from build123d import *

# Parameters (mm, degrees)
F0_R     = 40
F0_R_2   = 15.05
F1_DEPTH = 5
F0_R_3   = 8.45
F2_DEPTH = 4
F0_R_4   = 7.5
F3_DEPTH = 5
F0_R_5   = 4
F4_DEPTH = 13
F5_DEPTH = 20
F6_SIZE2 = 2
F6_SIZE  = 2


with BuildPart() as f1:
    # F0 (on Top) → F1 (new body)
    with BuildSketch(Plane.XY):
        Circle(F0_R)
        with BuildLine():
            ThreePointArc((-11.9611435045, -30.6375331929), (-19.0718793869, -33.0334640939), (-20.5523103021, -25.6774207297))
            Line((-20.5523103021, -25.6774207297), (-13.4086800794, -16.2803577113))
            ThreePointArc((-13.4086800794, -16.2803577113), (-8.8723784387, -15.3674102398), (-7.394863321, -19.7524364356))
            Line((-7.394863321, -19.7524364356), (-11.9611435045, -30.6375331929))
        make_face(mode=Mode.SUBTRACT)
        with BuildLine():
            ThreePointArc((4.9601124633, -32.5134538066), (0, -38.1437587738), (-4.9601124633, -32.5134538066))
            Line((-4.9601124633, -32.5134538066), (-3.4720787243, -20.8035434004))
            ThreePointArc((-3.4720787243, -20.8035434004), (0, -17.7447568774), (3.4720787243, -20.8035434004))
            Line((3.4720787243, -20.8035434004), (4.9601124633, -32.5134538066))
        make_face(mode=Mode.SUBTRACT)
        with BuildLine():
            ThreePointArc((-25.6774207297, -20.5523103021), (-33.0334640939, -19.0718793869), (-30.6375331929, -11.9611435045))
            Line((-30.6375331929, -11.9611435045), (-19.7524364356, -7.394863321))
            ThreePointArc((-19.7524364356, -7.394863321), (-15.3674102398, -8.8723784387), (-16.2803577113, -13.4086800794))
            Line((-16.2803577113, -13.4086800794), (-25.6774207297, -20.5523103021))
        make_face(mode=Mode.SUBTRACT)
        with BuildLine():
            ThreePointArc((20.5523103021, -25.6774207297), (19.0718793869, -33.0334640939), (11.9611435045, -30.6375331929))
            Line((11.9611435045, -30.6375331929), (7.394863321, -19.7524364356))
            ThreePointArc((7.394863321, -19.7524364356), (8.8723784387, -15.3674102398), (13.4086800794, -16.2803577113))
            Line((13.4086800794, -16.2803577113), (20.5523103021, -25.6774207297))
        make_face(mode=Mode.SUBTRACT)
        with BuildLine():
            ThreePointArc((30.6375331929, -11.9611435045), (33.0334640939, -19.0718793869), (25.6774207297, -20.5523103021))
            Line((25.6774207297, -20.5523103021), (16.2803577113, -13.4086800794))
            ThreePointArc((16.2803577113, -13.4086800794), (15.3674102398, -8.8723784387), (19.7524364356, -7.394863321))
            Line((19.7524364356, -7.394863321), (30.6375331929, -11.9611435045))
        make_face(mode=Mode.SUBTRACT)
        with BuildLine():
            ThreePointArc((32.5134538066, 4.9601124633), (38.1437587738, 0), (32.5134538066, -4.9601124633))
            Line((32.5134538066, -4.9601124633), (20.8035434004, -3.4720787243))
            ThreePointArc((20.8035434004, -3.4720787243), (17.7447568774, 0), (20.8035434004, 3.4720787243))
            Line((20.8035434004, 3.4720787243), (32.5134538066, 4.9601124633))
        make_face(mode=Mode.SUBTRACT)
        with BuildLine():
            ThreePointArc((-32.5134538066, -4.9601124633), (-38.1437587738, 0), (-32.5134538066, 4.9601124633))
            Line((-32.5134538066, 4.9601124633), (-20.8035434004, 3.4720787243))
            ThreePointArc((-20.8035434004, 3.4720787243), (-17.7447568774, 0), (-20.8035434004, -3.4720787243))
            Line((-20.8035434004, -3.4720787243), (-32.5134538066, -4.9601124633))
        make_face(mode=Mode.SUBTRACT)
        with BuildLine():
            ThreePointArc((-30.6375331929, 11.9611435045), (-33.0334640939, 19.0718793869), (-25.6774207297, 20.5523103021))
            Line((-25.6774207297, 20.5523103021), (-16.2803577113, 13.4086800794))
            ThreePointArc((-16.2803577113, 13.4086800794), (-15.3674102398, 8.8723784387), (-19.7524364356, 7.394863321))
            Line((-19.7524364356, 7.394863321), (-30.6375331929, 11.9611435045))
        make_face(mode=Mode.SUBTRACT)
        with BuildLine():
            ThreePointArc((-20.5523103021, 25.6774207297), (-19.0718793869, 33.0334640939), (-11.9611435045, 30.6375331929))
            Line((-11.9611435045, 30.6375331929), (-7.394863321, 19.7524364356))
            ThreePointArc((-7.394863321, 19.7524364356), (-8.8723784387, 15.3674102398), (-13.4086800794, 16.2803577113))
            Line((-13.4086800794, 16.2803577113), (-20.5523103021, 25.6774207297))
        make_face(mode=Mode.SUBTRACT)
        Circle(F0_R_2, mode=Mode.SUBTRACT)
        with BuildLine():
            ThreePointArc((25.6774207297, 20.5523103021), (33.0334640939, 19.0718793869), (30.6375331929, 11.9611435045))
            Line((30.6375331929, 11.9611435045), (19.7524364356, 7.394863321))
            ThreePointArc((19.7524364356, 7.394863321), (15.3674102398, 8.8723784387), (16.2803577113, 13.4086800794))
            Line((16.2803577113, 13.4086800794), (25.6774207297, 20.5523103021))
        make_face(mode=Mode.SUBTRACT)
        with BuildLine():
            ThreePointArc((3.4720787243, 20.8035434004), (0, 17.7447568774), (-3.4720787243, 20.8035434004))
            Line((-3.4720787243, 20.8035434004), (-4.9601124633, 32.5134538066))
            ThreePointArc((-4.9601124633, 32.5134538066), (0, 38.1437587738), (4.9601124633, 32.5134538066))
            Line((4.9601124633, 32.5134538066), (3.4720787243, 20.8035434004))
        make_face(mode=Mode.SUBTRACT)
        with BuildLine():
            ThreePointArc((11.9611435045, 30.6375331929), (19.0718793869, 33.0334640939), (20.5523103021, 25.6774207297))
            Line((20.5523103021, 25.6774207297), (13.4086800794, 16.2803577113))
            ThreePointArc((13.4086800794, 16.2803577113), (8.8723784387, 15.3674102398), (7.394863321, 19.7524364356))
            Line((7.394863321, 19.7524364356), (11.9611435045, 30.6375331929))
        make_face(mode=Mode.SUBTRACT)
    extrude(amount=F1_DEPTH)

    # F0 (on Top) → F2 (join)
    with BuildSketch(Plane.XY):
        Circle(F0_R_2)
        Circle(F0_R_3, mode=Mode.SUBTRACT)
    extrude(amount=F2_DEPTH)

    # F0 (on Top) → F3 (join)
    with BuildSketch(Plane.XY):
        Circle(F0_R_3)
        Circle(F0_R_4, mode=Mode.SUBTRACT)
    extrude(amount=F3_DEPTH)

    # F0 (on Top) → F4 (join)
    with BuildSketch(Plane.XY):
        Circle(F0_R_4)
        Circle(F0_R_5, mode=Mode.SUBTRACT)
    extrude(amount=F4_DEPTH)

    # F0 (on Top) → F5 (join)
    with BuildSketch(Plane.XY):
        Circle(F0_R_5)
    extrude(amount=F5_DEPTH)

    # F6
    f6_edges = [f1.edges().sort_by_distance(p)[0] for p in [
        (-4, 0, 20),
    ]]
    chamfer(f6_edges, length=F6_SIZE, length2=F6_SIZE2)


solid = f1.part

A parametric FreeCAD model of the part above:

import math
import FreeCAD as App
import Part
import Sketcher
from FreeCAD import Vector


def edges_at(feature, points):
    """Names of the edges that pass closest to the given points."""
    edges = feature.Shape.Edges
    near = lambda p: min(range(len(edges)), key=lambda i: edges[i].distToShape(Part.Vertex(*p))[0])
    return sorted({f"Edge{near(p) + 1}" for p in points})

doc = App.newDocument("Part")
body = doc.addObject("PartDesign::Body", "Body")

# Sketch on XY plane
sketch1 = body.newObject("Sketcher::SketchObject", "Sketch")
sketch1.AttachmentSupport = (doc.getObject("XY_Plane"), [""])
sketch1.MapMode = "FlatFace"
sketch1.addGeometry([
    Part.Circle(Vector(0, 0, 0), Vector(0, 0, 1), 40),  # 0
    Part.LineSegment(Vector(-7.4, -19.8, 0), Vector(-12, -30.6, 0)),  # 1
    Part.ArcOfCircle(Part.Circle(Vector(-16.6, -28.7, 0), Vector(0, 0, 1), 5), math.radians(143), math.radians(337)),  # 2
    Part.LineSegment(Vector(-20.6, -25.7, 0), Vector(-13.4, -16.3, 0)),  # 3
    Part.ArcOfCircle(Part.Circle(Vector(-10.6, -18.4, 0), Vector(0, 0, 1), 3.5), math.radians(-23), math.radians(143)),  # 4
    Part.LineSegment(Vector(-16.3, -13.4, 0), Vector(-25.7, -20.6, 0)),  # 5
    Part.ArcOfCircle(Part.Circle(Vector(-28.7, -16.6, 0), Vector(0, 0, 1), 5), math.radians(113), math.radians(307)),  # 6
    Part.LineSegment(Vector(-30.6, -12, 0), Vector(-19.8, -7.4, 0)),  # 7
    Part.ArcOfCircle(Part.Circle(Vector(-18.4, -10.6, 0), Vector(0, 0, 1), 3.5), math.radians(-53), math.radians(113)),  # 8
    Part.LineSegment(Vector(3.5, -20.8, 0), Vector(5, -32.5, 0)),  # 9
    Part.ArcOfCircle(Part.Circle(Vector(0, -33.1, 0), Vector(0, 0, 1), 5), math.radians(173), math.radians(367)),  # 10
    Part.LineSegment(Vector(-5, -32.5, 0), Vector(-3.5, -20.8, 0)),  # 11
    Part.ArcOfCircle(Part.Circle(Vector(0, -21.2, 0), Vector(0, 0, 1), 3.5), math.radians(7), math.radians(173)),  # 12
    Part.LineSegment(Vector(13.4, -16.3, 0), Vector(20.6, -25.7, 0)),  # 13
    Part.ArcOfCircle(Part.Circle(Vector(16.6, -28.7, 0), Vector(0, 0, 1), 5), math.radians(-157), math.radians(37)),  # 14
    Part.LineSegment(Vector(12, -30.6, 0), Vector(7.4, -19.8, 0)),  # 15
    Part.ArcOfCircle(Part.Circle(Vector(10.6, -18.4, 0), Vector(0, 0, 1), 3.5), math.radians(37), math.radians(203)),  # 16
    Part.LineSegment(Vector(19.8, -7.4, 0), Vector(30.6, -12, 0)),  # 17
    Part.ArcOfCircle(Part.Circle(Vector(28.7, -16.6, 0), Vector(0, 0, 1), 5), math.radians(-127), math.radians(67)),  # 18
    Part.LineSegment(Vector(25.7, -20.6, 0), Vector(16.3, -13.4, 0)),  # 19
    Part.ArcOfCircle(Part.Circle(Vector(18.4, -10.6, 0), Vector(0, 0, 1), 3.5), math.radians(67), math.radians(233)),  # 20
    Part.LineSegment(Vector(-20.8, -3.5, 0), Vector(-32.5, -5, 0)),  # 21
    Part.ArcOfCircle(Part.Circle(Vector(-33.1, 0, 0), Vector(0, 0, 1), 5), math.radians(83), math.radians(277)),  # 22
    Part.LineSegment(Vector(-32.5, 5, 0), Vector(-20.8, 3.5, 0)),  # 23
    Part.ArcOfCircle(Part.Circle(Vector(-21.2, 0, 0), Vector(0, 0, 1), 3.5), math.radians(-83), math.radians(83)),  # 24
    Part.LineSegment(Vector(-19.8, 7.4, 0), Vector(-30.6, 12, 0)),  # 25
    Part.ArcOfCircle(Part.Circle(Vector(-28.7, 16.6, 0), Vector(0, 0, 1), 5), math.radians(53), math.radians(247)),  # 26
    Part.LineSegment(Vector(-25.7, 20.6, 0), Vector(-16.3, 13.4, 0)),  # 27
    Part.ArcOfCircle(Part.Circle(Vector(-18.4, 10.6, 0), Vector(0, 0, 1), 3.5), math.radians(-113), math.radians(53)),  # 28
    Part.LineSegment(Vector(-13.4, 16.3, 0), Vector(-20.6, 25.7, 0)),  # 29
    Part.ArcOfCircle(Part.Circle(Vector(-16.6, 28.7, 0), Vector(0, 0, 1), 5), math.radians(23), math.radians(217)),  # 30
    Part.LineSegment(Vector(-12, 30.6, 0), Vector(-7.4, 19.8, 0)),  # 31
    Part.ArcOfCircle(Part.Circle(Vector(-10.6, 18.4, 0), Vector(0, 0, 1), 3.5), math.radians(-143), math.radians(23)),  # 32
    Part.Circle(Vector(0, 0, 0), Vector(0, 0, 1), 15.1),  # 33
    Part.LineSegment(Vector(20.8, 3.5, 0), Vector(32.5, 5, 0)),  # 34
    Part.ArcOfCircle(Part.Circle(Vector(33.1, 0, 0), Vector(0, 0, 1), 5), math.radians(-97), math.radians(97)),  # 35
    Part.LineSegment(Vector(32.5, -5, 0), Vector(20.8, -3.5, 0)),  # 36
    Part.ArcOfCircle(Part.Circle(Vector(21.2, 0, 0), Vector(0, 0, 1), 3.5), math.radians(97), math.radians(263)),  # 37
    Part.LineSegment(Vector(16.3, 13.4, 0), Vector(25.7, 20.6, 0)),  # 38
    Part.ArcOfCircle(Part.Circle(Vector(28.7, 16.6, 0), Vector(0, 0, 1), 5), math.radians(-67), math.radians(127)),  # 39
    Part.LineSegment(Vector(30.6, 12, 0), Vector(19.8, 7.4, 0)),  # 40
    Part.ArcOfCircle(Part.Circle(Vector(18.4, 10.6, 0), Vector(0, 0, 1), 3.5), math.radians(127), math.radians(293)),  # 41
    Part.LineSegment(Vector(5, 32.5, 0), Vector(3.5, 20.8, 0)),  # 42
    Part.ArcOfCircle(Part.Circle(Vector(0, 21.2, 0), Vector(0, 0, 1), 3.5), math.radians(-173), math.radians(-7)),  # 43
    Part.LineSegment(Vector(-3.5, 20.8, 0), Vector(-5, 32.5, 0)),  # 44
    Part.ArcOfCircle(Part.Circle(Vector(0, 33.1, 0), Vector(0, 0, 1), 5), math.radians(-7), math.radians(187)),  # 45
    Part.LineSegment(Vector(7.4, 19.8, 0), Vector(12, 30.6, 0)),  # 46
    Part.ArcOfCircle(Part.Circle(Vector(16.6, 28.7, 0), Vector(0, 0, 1), 5), math.radians(-37), math.radians(157)),  # 47
    Part.LineSegment(Vector(20.6, 25.7, 0), Vector(13.4, 16.3, 0)),  # 48
    Part.ArcOfCircle(Part.Circle(Vector(10.6, 18.4, 0), Vector(0, 0, 1), 3.5), math.radians(157), math.radians(323)),  # 49
], False)
sketch1.addConstraint([
    Sketcher.Constraint("Tangent", 1, 2, 2, 2),
    Sketcher.Constraint("Tangent", 2, 1, 3, 1),
    Sketcher.Constraint("Tangent", 3, 2, 4, 2),
    Sketcher.Constraint("Tangent", 4, 1, 1, 1),
    Sketcher.Constraint("Tangent", 5, 2, 6, 2),
    Sketcher.Constraint("Tangent", 6, 1, 7, 1),
    Sketcher.Constraint("Tangent", 7, 2, 8, 2),
    Sketcher.Constraint("Tangent", 8, 1, 5, 1),
    Sketcher.Constraint("Tangent", 9, 2, 10, 2),
    Sketcher.Constraint("Tangent", 10, 1, 11, 1),
    Sketcher.Constraint("Tangent", 11, 2, 12, 2),
    Sketcher.Constraint("Tangent", 12, 1, 9, 1),
    Sketcher.Constraint("Tangent", 13, 2, 14, 2),
    Sketcher.Constraint("Tangent", 14, 1, 15, 1),
    Sketcher.Constraint("Tangent", 15, 2, 16, 2),
    Sketcher.Constraint("Tangent", 16, 1, 13, 1),
    Sketcher.Constraint("Tangent", 17, 2, 18, 2),
    Sketcher.Constraint("Tangent", 18, 1, 19, 1),
    Sketcher.Constraint("Tangent", 19, 2, 20, 2),
    Sketcher.Constraint("Tangent", 20, 1, 17, 1),
    Sketcher.Constraint("Tangent", 21, 2, 22, 2),
    Sketcher.Constraint("Tangent", 22, 1, 23, 1),
    Sketcher.Constraint("Tangent", 23, 2, 24, 2),
    Sketcher.Constraint("Tangent", 24, 1, 21, 1),
    Sketcher.Constraint("Tangent", 25, 2, 26, 2),
    Sketcher.Constraint("Tangent", 26, 1, 27, 1),
    Sketcher.Constraint("Tangent", 27, 2, 28, 2),
    Sketcher.Constraint("Tangent", 28, 1, 25, 1),
    Sketcher.Constraint("Tangent", 29, 2, 30, 2),
    Sketcher.Constraint("Tangent", 30, 1, 31, 1),
    Sketcher.Constraint("Tangent", 31, 2, 32, 2),
    Sketcher.Constraint("Tangent", 32, 1, 29, 1),
    Sketcher.Constraint("Tangent", 34, 2, 35, 2),
    Sketcher.Constraint("Tangent", 35, 1, 36, 1),
    Sketcher.Constraint("Tangent", 36, 2, 37, 2),
    Sketcher.Constraint("Tangent", 37, 1, 34, 1),
    Sketcher.Constraint("Tangent", 38, 2, 39, 2),
    Sketcher.Constraint("Tangent", 39, 1, 40, 1),
    Sketcher.Constraint("Tangent", 40, 2, 41, 2),
    Sketcher.Constraint("Tangent", 41, 1, 38, 1),
    Sketcher.Constraint("Tangent", 42, 2, 43, 2),
    Sketcher.Constraint("Tangent", 43, 1, 44, 1),
    Sketcher.Constraint("Tangent", 44, 2, 45, 2),
    Sketcher.Constraint("Tangent", 45, 1, 42, 1),
    Sketcher.Constraint("Tangent", 46, 2, 47, 2),
    Sketcher.Constraint("Tangent", 47, 1, 48, 1),
    Sketcher.Constraint("Tangent", 48, 2, 49, 2),
    Sketcher.Constraint("Tangent", 49, 1, 46, 1),
    Sketcher.Constraint("Coincident", 0, 3, -1, 1),
    Sketcher.Constraint("Coincident", 33, 3, -1, 1),
    Sketcher.Constraint("Equal", 2, 6),
    Sketcher.Constraint("Equal", 4, 8),
    Sketcher.Constraint("Equal", 6, 10),
    Sketcher.Constraint("Equal", 8, 12),
    Sketcher.Constraint("Equal", 10, 14),
    Sketcher.Constraint("Equal", 12, 16),
    Sketcher.Constraint("Equal", 14, 18),
    Sketcher.Constraint("Equal", 16, 20),
    Sketcher.Constraint("Equal", 18, 22),
    Sketcher.Constraint("Equal", 20, 24),
    Sketcher.Constraint("Equal", 22, 26),
    Sketcher.Constraint("Equal", 24, 28),
    Sketcher.Constraint("Equal", 26, 30),
    Sketcher.Constraint("Equal", 28, 32),
    Sketcher.Constraint("Equal", 30, 35),
    Sketcher.Constraint("Equal", 32, 37),
    Sketcher.Constraint("Equal", 35, 39),
    Sketcher.Constraint("Equal", 37, 41),
    Sketcher.Constraint("Equal", 41, 43),
    Sketcher.Constraint("Equal", 39, 45),
    Sketcher.Constraint("Equal", 45, 47),
    Sketcher.Constraint("Equal", 43, 49),
    Sketcher.Constraint("Symmetric", 18, 3, 26, 3, -1, 1),
    Sketcher.Constraint("Symmetric", 20, 3, 28, 3, -1, 1),
    Sketcher.Constraint("Symmetric", 14, 3, 30, 3, -1, 1),
    Sketcher.Constraint("Symmetric", 16, 3, 32, 3, -1, 1),
    Sketcher.Constraint("Symmetric", 22, 3, 35, 3, -1, 1),
    Sketcher.Constraint("Symmetric", 24, 3, 37, 3, -1, 1),
    Sketcher.Constraint("Symmetric", 6, 3, 39, 3, -1, 1),
    Sketcher.Constraint("Symmetric", 8, 3, 41, 3, -1, 1),
    Sketcher.Constraint("Symmetric", 12, 3, 43, 3, -1, 1),
    Sketcher.Constraint("Symmetric", 10, 3, 45, 3, -1, 1),
    Sketcher.Constraint("Symmetric", 2, 3, 47, 3, -1, 1),
    Sketcher.Constraint("Symmetric", 4, 3, 49, 3, -1, 1),
    Sketcher.Constraint("Symmetric", 2, 3, 14, 3, -2),
    Sketcher.Constraint("Symmetric", 4, 3, 16, 3, -2),
    Sketcher.Constraint("Symmetric", 6, 3, 18, 3, -2),
    Sketcher.Constraint("Symmetric", 8, 3, 20, 3, -2),
    Sketcher.Constraint("Symmetric", 9, 2, 10, 1, -2),
    Sketcher.Constraint("Symmetric", 22, 1, 34, 2, -2),
    Sketcher.Constraint("Perpendicular", 5, 13),
    Sketcher.Constraint("Perpendicular", 7, 15),
    Sketcher.Constraint("Perpendicular", 9, 21),
    Sketcher.Constraint("Equal", 7, 9),
    Sketcher.Constraint("Diameter", 0, 80.0),
    Sketcher.Constraint("Radius", 2, 5.0),
    Sketcher.Constraint("Diameter", 33, 30.1),
    Sketcher.Constraint("Radius", 4, 3.5),
    Sketcher.Constraint("DistanceY", 4, 3, -1, 1, 18.398499),
    Sketcher.Constraint("DistanceX", 8, 3, -1, 1, 18.398499),
    Sketcher.Constraint("DistanceX", 2, 3, -1, 1, 16.571879),
    Sketcher.Constraint("DistanceX", 4, 3, -1, 1, 10.622378),
    Sketcher.Constraint("DistanceY", 6, 3, -1, 1, 16.571879),
    Sketcher.Constraint("DistanceY", 10, 3, -1, 1, 33.143759),
    Sketcher.Constraint("DistanceX", 22, 3, -1, 1, 33.143759),
    Sketcher.Constraint("DistanceX", 2, 1, -1, 1, 20.55231),
])
pad1 = body.newObject("PartDesign::Pad", "Pad")
pad1.Profile = sketch1
pad1.Length = 5

# Sketch on XY plane
sketch2 = body.newObject("Sketcher::SketchObject", "Sketch001")
sketch2.AttachmentSupport = (doc.getObject("XY_Plane"), [""])
sketch2.MapMode = "FlatFace"
sketch2.addGeometry([
    Part.Circle(Vector(0, 0, 0), Vector(0, 0, 1), 15),
    Part.Circle(Vector(0, 0, 0), Vector(0, 0, 1), 8),
], False)
sketch2.addConstraint([
    Sketcher.Constraint("Coincident", 0, 3, -1, 1),
    Sketcher.Constraint("Coincident", 1, 3, -1, 1),
    Sketcher.Constraint("Diameter", 0, 30.1),
    Sketcher.Constraint("Diameter", 1, 16.9),
])
pad2 = body.newObject("PartDesign::Pad", "Pad001")
pad2.Profile = sketch2
pad2.Length = 4

# Sketch on XY plane
sketch3 = body.newObject("Sketcher::SketchObject", "Sketch002")
sketch3.AttachmentSupport = (doc.getObject("XY_Plane"), [""])
sketch3.MapMode = "FlatFace"
sketch3.addGeometry([
    Part.Circle(Vector(0, 0, 0), Vector(0, 0, 1), 8),
    Part.Circle(Vector(0, 0, 0), Vector(0, 0, 1), 8),
], False)
sketch3.addConstraint([
    Sketcher.Constraint("Coincident", 0, 3, -1, 1),
    Sketcher.Constraint("Coincident", 1, 3, -1, 1),
    Sketcher.Constraint("Diameter", 1, 15.0),
    Sketcher.Constraint("Diameter", 0, 16.9),
])
pad3 = body.newObject("PartDesign::Pad", "Pad002")
pad3.Profile = sketch3
pad3.Length = 5

# Sketch on XY plane
sketch4 = body.newObject("Sketcher::SketchObject", "Sketch003")
sketch4.AttachmentSupport = (doc.getObject("XY_Plane"), [""])
sketch4.MapMode = "FlatFace"
sketch4.addGeometry([
    Part.Circle(Vector(0, 0, 0), Vector(0, 0, 1), 7.5),
    Part.Circle(Vector(0, 0, 0), Vector(0, 0, 1), 4),
], False)
sketch4.addConstraint([
    Sketcher.Constraint("Coincident", 0, 3, -1, 1),
    Sketcher.Constraint("Coincident", 1, 3, -1, 1),
    Sketcher.Constraint("Diameter", 0, 15.0),
    Sketcher.Constraint("Diameter", 1, 8.0),
])
pad4 = body.newObject("PartDesign::Pad", "Pad003")
pad4.Profile = sketch4
pad4.Length = 13

# Sketch on XY plane
sketch5 = body.newObject("Sketcher::SketchObject", "Sketch004")
sketch5.AttachmentSupport = (doc.getObject("XY_Plane"), [""])
sketch5.MapMode = "FlatFace"
sketch5.addGeometry(Part.Circle(Vector(0, 0, 0), Vector(0, 0, 1), 4), False)
sketch5.addConstraint([
    Sketcher.Constraint("Coincident", 0, 3, -1, 1),
    Sketcher.Constraint("Diameter", 0, 8.0),
])
pad5 = body.newObject("PartDesign::Pad", "Pad004")
pad5.Profile = sketch5
pad5.Length = 20
doc.recompute()

chamfer = body.newObject("PartDesign::Chamfer", "Chamfer")
chamfer.Base = (pad5, edges_at(pad5, [(-4, 0, 20)]))
chamfer.ChamferType = "Two distances"
chamfer.Size = 2
chamfer.Size2 = 2

doc.recompute()
